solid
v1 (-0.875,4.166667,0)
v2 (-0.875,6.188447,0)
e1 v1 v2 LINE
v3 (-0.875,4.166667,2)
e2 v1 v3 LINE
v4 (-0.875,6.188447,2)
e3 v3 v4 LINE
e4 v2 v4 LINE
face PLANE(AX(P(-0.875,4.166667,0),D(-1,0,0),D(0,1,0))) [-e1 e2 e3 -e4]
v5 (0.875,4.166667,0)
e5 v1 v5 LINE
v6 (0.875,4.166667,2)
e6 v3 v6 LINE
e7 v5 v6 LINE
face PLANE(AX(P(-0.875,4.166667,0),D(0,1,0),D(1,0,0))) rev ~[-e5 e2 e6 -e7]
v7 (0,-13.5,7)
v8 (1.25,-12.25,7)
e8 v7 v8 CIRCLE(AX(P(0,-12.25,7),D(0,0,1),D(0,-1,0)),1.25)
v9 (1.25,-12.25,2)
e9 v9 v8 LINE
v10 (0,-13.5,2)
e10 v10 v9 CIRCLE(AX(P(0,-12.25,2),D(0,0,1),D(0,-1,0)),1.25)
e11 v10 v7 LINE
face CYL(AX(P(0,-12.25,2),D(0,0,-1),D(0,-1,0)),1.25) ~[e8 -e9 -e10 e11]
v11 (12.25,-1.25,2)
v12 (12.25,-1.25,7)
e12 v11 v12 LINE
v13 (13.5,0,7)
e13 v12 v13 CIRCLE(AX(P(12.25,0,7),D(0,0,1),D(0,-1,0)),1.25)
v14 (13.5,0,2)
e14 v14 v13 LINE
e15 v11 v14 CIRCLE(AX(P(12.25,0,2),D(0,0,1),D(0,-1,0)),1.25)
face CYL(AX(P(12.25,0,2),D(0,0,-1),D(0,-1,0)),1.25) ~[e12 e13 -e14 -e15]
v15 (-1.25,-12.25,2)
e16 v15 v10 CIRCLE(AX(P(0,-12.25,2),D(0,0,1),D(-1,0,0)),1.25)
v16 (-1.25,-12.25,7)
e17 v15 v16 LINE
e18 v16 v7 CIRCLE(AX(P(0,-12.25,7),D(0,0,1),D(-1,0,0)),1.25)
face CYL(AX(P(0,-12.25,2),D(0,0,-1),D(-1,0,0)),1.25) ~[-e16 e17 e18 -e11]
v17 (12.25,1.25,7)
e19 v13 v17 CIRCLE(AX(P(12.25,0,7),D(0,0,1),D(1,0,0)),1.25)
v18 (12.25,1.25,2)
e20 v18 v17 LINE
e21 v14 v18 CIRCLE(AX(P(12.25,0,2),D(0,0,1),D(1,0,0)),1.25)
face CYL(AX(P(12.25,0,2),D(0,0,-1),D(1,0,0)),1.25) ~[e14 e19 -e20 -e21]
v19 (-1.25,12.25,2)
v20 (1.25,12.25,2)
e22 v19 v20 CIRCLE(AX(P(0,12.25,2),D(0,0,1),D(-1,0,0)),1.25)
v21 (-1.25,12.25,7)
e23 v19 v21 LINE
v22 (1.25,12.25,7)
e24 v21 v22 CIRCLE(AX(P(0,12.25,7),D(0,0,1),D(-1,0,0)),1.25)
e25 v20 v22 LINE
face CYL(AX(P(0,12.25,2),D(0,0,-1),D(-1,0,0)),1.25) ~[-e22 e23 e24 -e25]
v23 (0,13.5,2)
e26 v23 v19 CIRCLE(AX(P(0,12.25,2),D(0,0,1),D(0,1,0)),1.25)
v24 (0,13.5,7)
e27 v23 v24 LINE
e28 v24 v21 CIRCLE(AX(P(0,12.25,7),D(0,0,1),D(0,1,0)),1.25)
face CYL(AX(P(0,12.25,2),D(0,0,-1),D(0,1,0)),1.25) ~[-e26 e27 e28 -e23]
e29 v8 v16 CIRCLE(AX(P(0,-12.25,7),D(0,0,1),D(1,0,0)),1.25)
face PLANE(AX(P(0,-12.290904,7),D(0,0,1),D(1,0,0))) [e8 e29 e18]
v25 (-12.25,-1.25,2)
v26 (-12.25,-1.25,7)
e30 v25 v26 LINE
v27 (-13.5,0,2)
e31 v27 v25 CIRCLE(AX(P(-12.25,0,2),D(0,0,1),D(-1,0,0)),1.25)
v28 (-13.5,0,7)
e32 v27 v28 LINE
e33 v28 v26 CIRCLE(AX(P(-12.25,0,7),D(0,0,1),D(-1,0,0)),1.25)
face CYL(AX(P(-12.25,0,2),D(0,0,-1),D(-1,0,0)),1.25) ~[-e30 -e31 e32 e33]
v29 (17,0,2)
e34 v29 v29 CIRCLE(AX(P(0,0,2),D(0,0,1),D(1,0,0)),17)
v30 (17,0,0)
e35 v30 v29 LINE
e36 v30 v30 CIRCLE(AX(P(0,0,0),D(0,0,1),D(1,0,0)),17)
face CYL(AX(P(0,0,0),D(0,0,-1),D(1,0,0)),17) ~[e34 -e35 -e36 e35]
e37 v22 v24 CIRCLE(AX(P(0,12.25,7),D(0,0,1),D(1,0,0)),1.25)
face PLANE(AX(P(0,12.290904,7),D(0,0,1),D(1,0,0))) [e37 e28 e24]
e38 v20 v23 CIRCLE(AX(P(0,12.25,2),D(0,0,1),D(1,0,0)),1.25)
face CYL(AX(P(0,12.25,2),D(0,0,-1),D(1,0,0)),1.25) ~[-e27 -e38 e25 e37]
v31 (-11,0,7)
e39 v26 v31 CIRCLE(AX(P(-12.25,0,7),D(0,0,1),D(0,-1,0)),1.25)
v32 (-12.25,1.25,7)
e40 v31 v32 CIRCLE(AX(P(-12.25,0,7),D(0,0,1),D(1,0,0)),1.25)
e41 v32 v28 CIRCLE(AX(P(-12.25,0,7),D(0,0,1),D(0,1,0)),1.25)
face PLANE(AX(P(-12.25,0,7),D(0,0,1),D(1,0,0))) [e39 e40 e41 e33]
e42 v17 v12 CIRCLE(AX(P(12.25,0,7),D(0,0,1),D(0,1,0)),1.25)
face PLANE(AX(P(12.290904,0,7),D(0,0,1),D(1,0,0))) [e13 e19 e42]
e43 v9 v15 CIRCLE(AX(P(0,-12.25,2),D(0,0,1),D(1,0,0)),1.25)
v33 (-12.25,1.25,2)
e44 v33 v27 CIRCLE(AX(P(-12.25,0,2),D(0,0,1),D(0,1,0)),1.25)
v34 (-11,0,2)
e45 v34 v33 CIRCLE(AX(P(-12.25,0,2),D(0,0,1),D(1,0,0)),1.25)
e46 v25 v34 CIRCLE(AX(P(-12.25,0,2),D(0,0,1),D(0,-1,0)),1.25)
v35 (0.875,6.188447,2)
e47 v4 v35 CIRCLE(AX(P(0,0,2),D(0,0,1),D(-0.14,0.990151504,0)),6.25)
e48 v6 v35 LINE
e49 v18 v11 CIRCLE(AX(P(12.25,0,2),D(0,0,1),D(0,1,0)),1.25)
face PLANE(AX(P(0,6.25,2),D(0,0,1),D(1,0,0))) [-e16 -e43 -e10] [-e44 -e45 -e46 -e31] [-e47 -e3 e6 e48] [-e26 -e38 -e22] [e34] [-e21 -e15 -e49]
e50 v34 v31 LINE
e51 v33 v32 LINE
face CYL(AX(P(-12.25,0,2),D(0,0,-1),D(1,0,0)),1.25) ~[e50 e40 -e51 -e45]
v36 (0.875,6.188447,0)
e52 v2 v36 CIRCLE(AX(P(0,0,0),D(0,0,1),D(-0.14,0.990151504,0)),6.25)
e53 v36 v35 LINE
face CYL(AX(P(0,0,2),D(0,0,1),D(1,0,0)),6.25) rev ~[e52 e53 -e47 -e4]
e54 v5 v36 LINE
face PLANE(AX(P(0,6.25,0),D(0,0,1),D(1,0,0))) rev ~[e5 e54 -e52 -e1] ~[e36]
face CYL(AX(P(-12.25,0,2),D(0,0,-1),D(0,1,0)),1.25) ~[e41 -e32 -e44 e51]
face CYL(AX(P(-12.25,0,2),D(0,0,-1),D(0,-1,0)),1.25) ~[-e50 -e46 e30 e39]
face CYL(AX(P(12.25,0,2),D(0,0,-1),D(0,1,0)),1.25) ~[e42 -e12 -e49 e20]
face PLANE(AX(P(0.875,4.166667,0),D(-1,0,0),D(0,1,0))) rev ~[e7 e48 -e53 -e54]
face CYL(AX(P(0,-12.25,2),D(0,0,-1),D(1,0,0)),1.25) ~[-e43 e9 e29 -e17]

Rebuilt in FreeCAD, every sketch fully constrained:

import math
import FreeCAD as App
import Part
import Sketcher
from FreeCAD import Vector


def add_polygon(sketch, points):
    """Adds a closed chain of lines whose ends are joined by coincident constraints."""
    first, n = sketch.GeometryCount, len(points)
    for a, b in zip(points, points[1:] + points[:1]):
        sketch.addGeometry(Part.LineSegment(App.Vector(*a, 0), App.Vector(*b, 0)), False)
    for i in range(n):
        sketch.addConstraint(Sketcher.Constraint("Coincident", first + i, 2, first + (i + 1) % n, 1))

doc = App.newDocument("Part")
body = doc.addObject("PartDesign::Body", "Body")

sketch1 = body.newObject("Sketcher::SketchObject", "Sketch")
sketch1.AttachmentSupport = (doc.getObject("XY_Plane"), [""])
sketch1.MapMode = "FlatFace"
add_polygon(sketch1, [(-13.5, 1.25), (-13.5, -1.25), (13.5, -1.25), (13.5, 1.25)])
sketch1.addConstraint(Sketcher.Constraint("Vertical", 0))
sketch1.addConstraint(Sketcher.Constraint("Horizontal", 1))
sketch1.addConstraint(Sketcher.Constraint("Vertical", 2))
sketch1.addConstraint(Sketcher.Constraint("Horizontal", 3))
sketch1.addConstraint(Sketcher.Constraint("Symmetric", 0, 2, 2, 2, -1, 1))
sketch1.addConstraint(Sketcher.Constraint("DistanceX", 1, 1, 1, 2, 27.0))
sketch1.addConstraint(Sketcher.Constraint("DistanceY", 0, 2, 0, 1, 2.5))
pad1 = body.newObject("PartDesign::Pad", "Pad")
pad1.Profile = sketch1
pad1.Length = 2

sketch2 = body.newObject("Sketcher::SketchObject", "Sketch001")
sketch2.AttachmentSupport = (doc.getObject("XY_Plane"), [""])
sketch2.MapMode = "FlatFace"
add_polygon(sketch2, [(-1.25, 13.5), (-1.25, -13.5), (1.25, -13.5), (1.25, 13.5)])
sketch2.addConstraint(Sketcher.Constraint("Vertical", 0))
sketch2.addConstraint(Sketcher.Constraint("Horizontal", 1))
sketch2.addConstraint(Sketcher.Constraint("Vertical", 2))
sketch2.addConstraint(Sketcher.Constraint("Horizontal", 3))
sketch2.addConstraint(Sketcher.Constraint("Symmetric", 0, 2, 2, 2, -1, 1))
sketch2.addConstraint(Sketcher.Constraint("DistanceY", 0, 2, 0, 1, 27.0))
sketch2.addConstraint(Sketcher.Constraint("DistanceX", 1, 1, 1, 2, 2.5))
pad2 = body.newObject("PartDesign::Pad", "Pad001")
pad2.Profile = sketch2
pad2.Length = 2

sketch3 = body.newObject("Sketcher::SketchObject", "Sketch002")
sketch3.AttachmentSupport = (doc.getObject("XY_Plane"), [""])
sketch3.MapMode = "FlatFace"
sketch3.AttachmentOffset = App.Placement(Vector(0, 0, 2), App.Rotation())
sketch3.addGeometry(Part.ArcOfCircle(Part.Circle(Vector(-12.25, 0, 0), Vector(0, 0, 1), 1.25), math.radians(-90), math.radians(0)), False)
sketch3.addGeometry(Part.ArcOfCircle(Part.Circle(Vector(-12.25, 0, 0), Vector(0, 0, 1), 1.25), math.radians(0), math.radians(90)), False)
sketch3.addGeometry(Part.ArcOfCircle(Part.Circle(Vector(-12.25, 0, 0), Vector(0, 0, 1), 1.25), math.radians(90), math.radians(180)), False)
sketch3.addGeometry(Part.ArcOfCircle(Part.Circle(Vector(-12.25, 0, 0), Vector(0, 0, 1), 1.25), math.radians(180), math.radians(270)), False)
sketch3.addGeometry(Part.ArcOfCircle(Part.Circle(Vector(0, 12.25, 0), Vector(0, 0, 1), 1.25), math.radians(90), math.radians(180)), False)
sketch3.addGeometry(Part.ArcOfCircle(Part.Circle(Vector(0, 12.25, 0), Vector(0, 0, 1), 1.25), math.radians(180), math.radians(360)), False)
sketch3.addGeometry(Part.ArcOfCircle(Part.Circle(Vector(0, 12.25, 0), Vector(0, 0, 1), 1.25), math.radians(0), math.radians(90)), False)
sketch3.addGeometry(Part.ArcOfCircle(Part.Circle(Vector(12.25, 0, 0), Vector(0, 0, 1), 1.25), math.radians(0), math.radians(90)), False)
sketch3.addGeometry(Part.ArcOfCircle(Part.Circle(Vector(12.25, 0, 0), Vector(0, 0, 1), 1.25), math.radians(90), math.radians(270)), False)
sketch3.addGeometry(Part.ArcOfCircle(Part.Circle(Vector(12.25, 0, 0), Vector(0, 0, 1), 1.25), math.radians(-90), math.radians(0)), False)
sketch3.addGeometry(Part.ArcOfCircle(Part.Circle(Vector(0, -12.25, 0), Vector(0, 0, 1), 1.25), math.radians(0), math.radians(180)), False)
sketch3.addGeometry(Part.ArcOfCircle(Part.Circle(Vector(0, -12.25, 0), Vector(0, 0, 1), 1.25), math.radians(180), math.radians(270)), False)
sketch3.addGeometry(Part.ArcOfCircle(Part.Circle(Vector(0, -12.25, 0), Vector(0, 0, 1), 1.25), math.radians(-90), math.radians(0)), False)
sketch3.addConstraint(Sketcher.Constraint("Tangent", 0, 2, 1, 1))
sketch3.addConstraint(Sketcher.Constraint("Tangent", 1, 2, 2, 1))
sketch3.addConstraint(Sketcher.Constraint("Tangent", 2, 2, 3, 1))
sketch3.addConstraint(Sketcher.Constraint("Tangent", 3, 2, 0, 1))
sketch3.addConstraint(Sketcher.Constraint("Tangent", 4, 2, 5, 1))
sketch3.addConstraint(Sketcher.Constraint("Tangent", 5, 2, 6, 1))
sketch3.addConstraint(Sketcher.Constraint("Tangent", 6, 2, 4, 1))
sketch3.addConstraint(Sketcher.Constraint("Tangent", 7, 2, 8, 1))
sketch3.addConstraint(Sketcher.Constraint("Tangent", 8, 2, 9, 1))
sketch3.addConstraint(Sketcher.Constraint("Tangent", 9, 2, 7, 1))
sketch3.addConstraint(Sketcher.Constraint("Tangent", 10, 2, 11, 1))
sketch3.addConstraint(Sketcher.Constraint("Tangent", 11, 2, 12, 1))
sketch3.addConstraint(Sketcher.Constraint("Tangent", 12, 2, 10, 1))
sketch3.addConstraint(Sketcher.Constraint("Equal", 0, 1))
sketch3.addConstraint(Sketcher.Constraint("Equal", 3, 4))
sketch3.addConstraint(Sketcher.Constraint("Equal", 6, 7))
sketch3.addConstraint(Sketcher.Constraint("Equal", 9, 10))
sketch3.addConstraint(Sketcher.Constraint("Symmetric", 0, 3, 7, 3, -1, 1))
sketch3.addConstraint(Sketcher.Constraint("Symmetric", 4, 3, 10, 3, -1, 1))
sketch3.addConstraint(Sketcher.Constraint("Symmetric", 4, 2, 5, 2, -2))
sketch3.addConstraint(Sketcher.Constraint("Symmetric", 1, 2, 7, 2, -2))
sketch3.addConstraint(Sketcher.Constraint("PointOnObject", 0, 2, -1))
sketch3.addConstraint(Sketcher.Constraint("PointOnObject", 2, 2, -1))
sketch3.addConstraint(Sketcher.Constraint("PointOnObject", 6, 2, -2))
sketch3.addConstraint(Sketcher.Constraint("PointOnObject", 9, 2, -1))
sketch3.addConstraint(Sketcher.Constraint("PointOnObject", 11, 2, -2))
sketch3.addConstraint(Sketcher.Constraint("Horizontal", 6, 3, 4, 2))
sketch3.addConstraint(Sketcher.Constraint("Horizontal", 12, 3, 10, 2))
sketch3.addConstraint(Sketcher.Constraint("Horizontal", 10, 2, 12, 2))
sketch3.addConstraint(Sketcher.Constraint("Vertical", 3, 3, 1, 2))
sketch3.addConstraint(Sketcher.Constraint("Vertical", 1, 2, 3, 2))
sketch3.addConstraint(Sketcher.Constraint("Vertical", 7, 2, 8, 2))
sketch3.addConstraint(Sketcher.Constraint("Radius", 0, 1.25))
sketch3.addConstraint(Sketcher.Constraint("DistanceX", 0, 2, -1, 1, 11.0))
sketch3.addConstraint(Sketcher.Constraint("DistanceY", 1, 2, 4, 2, 11.0))
pad3 = body.newObject("PartDesign::Pad", "Pad002")
pad3.Profile = sketch3
pad3.Length = 5

sketch4 = body.newObject("Sketcher::SketchObject", "Sketch003")
sketch4.AttachmentSupport = (doc.getObject("XY_Plane"), [""])
sketch4.MapMode = "FlatFace"
sketch4.addGeometry(Part.Circle(Vector(0, 0, 0), Vector(0, 0, 1), 17), False)
sketch4.addConstraint(Sketcher.Constraint("Coincident", 0, 3, -1, 1))
sketch4.addConstraint(Sketcher.Constraint("Diameter", 0, 34.0))
pad4 = body.newObject("PartDesign::Pad", "Pad003")
pad4.Profile = sketch4
pad4.Length = 2

sketch5 = body.newObject("Sketcher::SketchObject", "Sketch004")
sketch5.AttachmentSupport = (doc.getObject("XY_Plane"), [""])
sketch5.MapMode = "FlatFace"
sketch5.AttachmentOffset = App.Placement(Vector(0, 0, 2), App.Rotation())
sketch5.addGeometry(Part.Circle(Vector(0, 0, 0), Vector(0, 0, 1), 6.25), False)
sketch5.addConstraint(Sketcher.Constraint("Coincident", 0, 3, -1, 1))
sketch5.addConstraint(Sketcher.Constraint("Diameter", 0, 12.5))
pocket1 = body.newObject("PartDesign::Pocket", "Pocket")
pocket1.Profile = sketch5
pocket1.Type = "ThroughAll"

sketch6 = body.newObject("Sketcher::SketchObject", "Sketch005")
sketch6.AttachmentSupport = (doc.getObject("XY_Plane"), [""])
sketch6.MapMode = "FlatFace"
add_polygon(sketch6, [(-0.875, 8.333333), (-0.875, 4.166667), (0.875, 4.166667), (0.875, 8.333333)])
sketch6.addConstraint(Sketcher.Constraint("Vertical", 0))
sketch6.addConstraint(Sketcher.Constraint("Horizontal", 1))
sketch6.addConstraint(Sketcher.Constraint("Vertical", 2))
sketch6.addConstraint(Sketcher.Constraint("Horizontal", 3))
sketch6.addConstraint(Sketcher.Constraint("DistanceX", 1, 1, 1, 2, 1.75))
sketch6.addConstraint(Sketcher.Constraint("DistanceX", 0, 2, -1, 1, 0.875))
sketch6.addConstraint(Sketcher.Constraint("DistanceY", 0, 2, 0, 1, 4.166667))
sketch6.addConstraint(Sketcher.Constraint("DistanceY", -1, 1, 0, 2, 4.166667))
pad5 = body.newObject("PartDesign::Pad", "Pad004")
pad5.Profile = sketch6
pad5.Length = 2

doc.recompute()
